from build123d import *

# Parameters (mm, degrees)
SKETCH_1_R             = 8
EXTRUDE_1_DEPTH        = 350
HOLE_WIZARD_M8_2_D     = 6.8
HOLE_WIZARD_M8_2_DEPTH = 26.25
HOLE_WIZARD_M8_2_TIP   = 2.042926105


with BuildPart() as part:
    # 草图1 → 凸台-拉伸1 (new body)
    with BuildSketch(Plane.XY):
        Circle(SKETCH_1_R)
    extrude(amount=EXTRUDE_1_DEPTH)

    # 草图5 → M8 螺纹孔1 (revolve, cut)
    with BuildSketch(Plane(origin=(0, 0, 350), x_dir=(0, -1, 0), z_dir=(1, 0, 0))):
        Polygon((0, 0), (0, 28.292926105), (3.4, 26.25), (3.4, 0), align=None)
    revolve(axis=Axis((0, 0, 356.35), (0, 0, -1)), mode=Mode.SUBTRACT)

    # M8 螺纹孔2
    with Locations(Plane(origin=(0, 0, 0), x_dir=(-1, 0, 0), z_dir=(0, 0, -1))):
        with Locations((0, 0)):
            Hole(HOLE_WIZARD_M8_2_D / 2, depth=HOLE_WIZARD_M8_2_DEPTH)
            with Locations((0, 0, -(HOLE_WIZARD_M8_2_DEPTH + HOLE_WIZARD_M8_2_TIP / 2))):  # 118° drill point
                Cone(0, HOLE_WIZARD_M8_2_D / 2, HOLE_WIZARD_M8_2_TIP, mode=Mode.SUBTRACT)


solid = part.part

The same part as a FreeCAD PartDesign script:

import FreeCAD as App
import Part
import Sketcher

V = App.Vector
Q = App.Units.Quantity

doc = App.newDocument("Part")
body = doc.addObject("PartDesign::Body", "Body")

# Sketch on XY plane
sketch1 = body.newObject("Sketcher::SketchObject", "Sketch")
sketch1.AttachmentSupport = (doc.getObject("XY_Plane"), [""])
sketch1.MapMode = "FlatFace"
sketch1.addGeometry(Part.Circle(V(0, 0, 0), V(0, 0, 1), 8), False)
sketch1.addConstraint([
    Sketcher.Constraint("Coincident", 0, 3, -1, 1),
    Sketcher.Constraint("Diameter", 0, 16.0),
])
pad1 = body.newObject("PartDesign::Pad", "Pad")
pad1.Profile = sketch1
pad1.Length = 350

# Sketch on YZ plane
sketch2 = body.newObject("Sketcher::SketchObject", "Sketch001")
sketch2.AttachmentSupport = (doc.getObject("YZ_Plane"), [""])
sketch2.MapMode = "FlatFace"
sketch2.addGeometry([
    Part.LineSegment(V(0, 321.7, 0), V(0, 350, 0)),
    Part.LineSegment(V(0, 350, 0), V(-3.4, 350, 0)),
    Part.LineSegment(V(-3.4, 350, 0), V(-3.4, 323.8, 0)),
    Part.LineSegment(V(-3.4, 323.8, 0), V(0, 321.7, 0)),
], False)
sketch2.addConstraint([
    Sketcher.Constraint("Coincident", 0, 2, 1, 1),
    Sketcher.Constraint("Coincident", 1, 2, 2, 1),
    Sketcher.Constraint("Coincident", 2, 2, 3, 1),
    Sketcher.Constraint("Coincident", 3, 2, 0, 1),
    Sketcher.Constraint("Vertical", 0),
    Sketcher.Constraint("Horizontal", 1),
    Sketcher.Constraint("Vertical", 2),
    Sketcher.Constraint("PointOnObject", 0, 2, -2),
    Sketcher.Constraint("Angle", 3, Q("-31 deg")),
    Sketcher.Constraint("DistanceX", 1, 2, 1, 1, 3.4),
    Sketcher.Constraint("DistanceY", -1, 1, 0, 2, 350.0),
    Sketcher.Constraint("DistanceY", 2, 2, 2, 1, 26.25),
])
groove = body.newObject("PartDesign::Groove", "Groove")
groove.Profile = sketch2
groove.ReferenceAxis = (sketch2, ["V_Axis"])
groove.Angle = 360

# Sketch on XY plane
sketch3 = body.newObject("Sketcher::SketchObject", "Sketch002")
sketch3.AttachmentSupport = (doc.getObject("XY_Plane"), [""])
sketch3.MapMode = "FlatFace"
sketch3.addGeometry(Part.Circle(V(0, 0, 0), V(0, 0, 1), 3.4), False)
sketch3.addConstraint([
    Sketcher.Constraint("Coincident", 0, 3, -1, 1),
    Sketcher.Constraint("Diameter", 0, 6.8),
])
doc.recompute()
hole = body.newObject("PartDesign::Hole", "Hole")
hole.Profile = sketch3
hole.ThreadType = "None"
hole.Diameter = 6.8
hole.DepthType = "Dimension"
hole.Depth = 26.25
hole.DrillPoint = "Angled"
hole.DrillPointAngle = 118
hole.Reversed = True

doc.recompute()
